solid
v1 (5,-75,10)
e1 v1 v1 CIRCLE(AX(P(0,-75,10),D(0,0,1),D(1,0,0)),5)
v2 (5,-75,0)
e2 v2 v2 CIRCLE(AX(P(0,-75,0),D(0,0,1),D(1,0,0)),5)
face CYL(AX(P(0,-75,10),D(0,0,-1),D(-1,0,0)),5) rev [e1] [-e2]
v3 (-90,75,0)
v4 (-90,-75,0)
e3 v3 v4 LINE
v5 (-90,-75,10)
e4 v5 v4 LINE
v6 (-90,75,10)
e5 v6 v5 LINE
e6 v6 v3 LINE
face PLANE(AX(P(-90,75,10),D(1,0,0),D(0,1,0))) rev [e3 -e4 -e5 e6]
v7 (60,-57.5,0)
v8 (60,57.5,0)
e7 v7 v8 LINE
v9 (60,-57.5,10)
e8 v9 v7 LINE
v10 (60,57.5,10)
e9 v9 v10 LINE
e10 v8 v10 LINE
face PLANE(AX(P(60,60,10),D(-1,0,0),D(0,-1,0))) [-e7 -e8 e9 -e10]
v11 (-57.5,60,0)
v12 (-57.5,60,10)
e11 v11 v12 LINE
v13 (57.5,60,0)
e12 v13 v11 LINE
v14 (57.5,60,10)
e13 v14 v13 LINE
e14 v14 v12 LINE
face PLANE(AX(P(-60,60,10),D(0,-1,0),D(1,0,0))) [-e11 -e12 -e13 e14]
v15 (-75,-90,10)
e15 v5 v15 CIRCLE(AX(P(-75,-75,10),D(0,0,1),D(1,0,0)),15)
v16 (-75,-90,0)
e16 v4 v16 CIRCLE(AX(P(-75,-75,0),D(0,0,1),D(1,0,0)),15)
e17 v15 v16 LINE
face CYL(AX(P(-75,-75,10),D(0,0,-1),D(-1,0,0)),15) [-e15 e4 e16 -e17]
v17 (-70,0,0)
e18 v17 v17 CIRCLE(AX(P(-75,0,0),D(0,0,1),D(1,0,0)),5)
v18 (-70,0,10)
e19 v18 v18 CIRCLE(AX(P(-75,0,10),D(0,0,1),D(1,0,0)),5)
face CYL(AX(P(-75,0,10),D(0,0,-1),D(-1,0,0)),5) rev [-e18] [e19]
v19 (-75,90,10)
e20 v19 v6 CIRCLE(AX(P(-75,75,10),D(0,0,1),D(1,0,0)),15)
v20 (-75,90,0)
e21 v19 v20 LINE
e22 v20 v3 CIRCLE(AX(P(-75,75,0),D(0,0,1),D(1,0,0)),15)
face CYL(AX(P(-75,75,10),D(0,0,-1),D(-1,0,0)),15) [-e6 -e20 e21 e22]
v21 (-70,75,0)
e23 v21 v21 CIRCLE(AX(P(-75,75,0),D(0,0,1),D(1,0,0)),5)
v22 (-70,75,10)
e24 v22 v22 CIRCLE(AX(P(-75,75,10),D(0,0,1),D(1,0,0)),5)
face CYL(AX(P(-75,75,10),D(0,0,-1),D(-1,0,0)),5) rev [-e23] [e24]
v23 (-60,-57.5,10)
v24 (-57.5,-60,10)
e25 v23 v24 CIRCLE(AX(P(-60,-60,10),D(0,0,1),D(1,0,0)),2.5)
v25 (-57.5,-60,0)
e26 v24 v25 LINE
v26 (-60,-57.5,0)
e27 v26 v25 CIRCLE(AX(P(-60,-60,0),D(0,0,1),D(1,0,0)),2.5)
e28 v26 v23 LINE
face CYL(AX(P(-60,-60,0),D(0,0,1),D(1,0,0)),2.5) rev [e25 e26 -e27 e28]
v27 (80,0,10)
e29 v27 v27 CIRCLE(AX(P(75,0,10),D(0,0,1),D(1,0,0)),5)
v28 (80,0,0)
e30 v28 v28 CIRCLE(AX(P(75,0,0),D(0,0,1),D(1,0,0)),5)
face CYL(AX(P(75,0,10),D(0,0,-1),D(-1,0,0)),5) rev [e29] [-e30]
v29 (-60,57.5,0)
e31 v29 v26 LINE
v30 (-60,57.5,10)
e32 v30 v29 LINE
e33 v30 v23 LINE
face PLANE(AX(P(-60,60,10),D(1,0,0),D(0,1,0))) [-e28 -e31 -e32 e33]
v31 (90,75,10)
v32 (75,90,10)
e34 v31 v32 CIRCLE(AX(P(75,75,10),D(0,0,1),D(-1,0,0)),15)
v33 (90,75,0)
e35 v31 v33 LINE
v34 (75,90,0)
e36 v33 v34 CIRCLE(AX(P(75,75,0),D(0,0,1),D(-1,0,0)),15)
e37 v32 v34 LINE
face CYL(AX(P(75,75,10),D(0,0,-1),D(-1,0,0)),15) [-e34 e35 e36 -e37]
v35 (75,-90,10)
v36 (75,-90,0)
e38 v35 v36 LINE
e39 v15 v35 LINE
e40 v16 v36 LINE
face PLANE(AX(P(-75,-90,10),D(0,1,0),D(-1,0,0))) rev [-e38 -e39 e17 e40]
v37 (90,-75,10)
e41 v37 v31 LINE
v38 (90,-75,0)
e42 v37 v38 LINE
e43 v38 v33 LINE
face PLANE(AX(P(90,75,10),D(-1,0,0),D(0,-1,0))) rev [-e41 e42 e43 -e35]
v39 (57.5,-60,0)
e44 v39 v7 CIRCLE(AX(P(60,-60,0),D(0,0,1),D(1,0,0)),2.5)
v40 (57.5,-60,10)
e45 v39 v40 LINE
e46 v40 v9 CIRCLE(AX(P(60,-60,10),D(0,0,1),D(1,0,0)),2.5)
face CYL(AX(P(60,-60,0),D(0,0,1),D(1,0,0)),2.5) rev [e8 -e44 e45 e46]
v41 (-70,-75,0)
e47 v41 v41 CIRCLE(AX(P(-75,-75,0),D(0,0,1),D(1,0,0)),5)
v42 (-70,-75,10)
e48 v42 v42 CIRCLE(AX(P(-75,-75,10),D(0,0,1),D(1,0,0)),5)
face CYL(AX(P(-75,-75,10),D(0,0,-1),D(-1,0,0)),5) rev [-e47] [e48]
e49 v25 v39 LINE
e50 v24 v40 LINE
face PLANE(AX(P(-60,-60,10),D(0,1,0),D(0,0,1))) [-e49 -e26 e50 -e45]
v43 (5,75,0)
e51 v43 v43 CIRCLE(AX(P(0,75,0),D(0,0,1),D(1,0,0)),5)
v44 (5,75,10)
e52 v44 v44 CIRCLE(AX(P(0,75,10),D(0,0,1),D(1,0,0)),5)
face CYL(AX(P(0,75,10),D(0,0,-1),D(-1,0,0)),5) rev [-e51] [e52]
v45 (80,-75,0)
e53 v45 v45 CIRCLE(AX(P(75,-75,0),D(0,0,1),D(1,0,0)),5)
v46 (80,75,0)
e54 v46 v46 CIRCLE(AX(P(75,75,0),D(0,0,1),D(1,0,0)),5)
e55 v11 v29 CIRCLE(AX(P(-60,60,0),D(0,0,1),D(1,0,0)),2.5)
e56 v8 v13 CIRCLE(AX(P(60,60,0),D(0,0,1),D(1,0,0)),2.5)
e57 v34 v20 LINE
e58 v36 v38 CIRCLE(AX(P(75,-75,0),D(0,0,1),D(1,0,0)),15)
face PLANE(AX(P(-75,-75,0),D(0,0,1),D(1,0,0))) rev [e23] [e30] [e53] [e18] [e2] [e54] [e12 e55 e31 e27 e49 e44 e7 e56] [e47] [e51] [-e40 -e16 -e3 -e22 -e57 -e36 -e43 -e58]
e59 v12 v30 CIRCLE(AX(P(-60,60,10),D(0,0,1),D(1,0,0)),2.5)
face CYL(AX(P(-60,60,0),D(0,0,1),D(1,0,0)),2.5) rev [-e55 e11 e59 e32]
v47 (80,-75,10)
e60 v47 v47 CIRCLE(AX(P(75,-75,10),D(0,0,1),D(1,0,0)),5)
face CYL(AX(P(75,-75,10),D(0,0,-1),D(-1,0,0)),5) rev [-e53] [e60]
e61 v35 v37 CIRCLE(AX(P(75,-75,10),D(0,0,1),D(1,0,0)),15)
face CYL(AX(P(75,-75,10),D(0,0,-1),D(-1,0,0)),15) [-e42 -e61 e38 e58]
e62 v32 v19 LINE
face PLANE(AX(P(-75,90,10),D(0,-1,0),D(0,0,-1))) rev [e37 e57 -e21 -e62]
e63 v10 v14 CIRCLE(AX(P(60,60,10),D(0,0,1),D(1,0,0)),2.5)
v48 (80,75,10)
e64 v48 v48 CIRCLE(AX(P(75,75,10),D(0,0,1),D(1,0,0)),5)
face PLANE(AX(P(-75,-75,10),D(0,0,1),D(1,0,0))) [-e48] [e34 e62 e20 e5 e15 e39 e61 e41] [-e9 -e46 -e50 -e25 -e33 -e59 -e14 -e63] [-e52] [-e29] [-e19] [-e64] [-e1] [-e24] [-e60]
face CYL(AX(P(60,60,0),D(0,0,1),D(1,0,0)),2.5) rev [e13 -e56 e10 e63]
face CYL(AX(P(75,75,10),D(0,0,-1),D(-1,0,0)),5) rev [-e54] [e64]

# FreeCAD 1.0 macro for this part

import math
import FreeCAD as App
import Part
import Sketcher
Q = App.Units.Quantity


def add_polygon(sketch, points):
    """Adds a closed chain of lines whose ends are joined by coincident constraints."""
    first, n = sketch.GeometryCount, len(points)
    for a, b in zip(points, points[1:] + points[:1]):
        sketch.addGeometry(Part.LineSegment(App.Vector(*a, 0), App.Vector(*b, 0)), False)
    for i in range(n):
        sketch.addConstraint(Sketcher.Constraint("Coincident", first + i, 2, first + (i + 1) % n, 1))

doc = App.newDocument("Part")
body = doc.addObject("PartDesign::Body", "Body")

sketch1 = body.newObject("Sketcher::SketchObject", "Sketch")
sketch1.AttachmentSupport = (doc.getObject("XY_Plane"), [""])
sketch1.MapMode = "FlatFace"
sketch1.addGeometry(Part.LineSegment(App.Vector(75, 90, 0), App.Vector(-75, 90, 0)), False)
sketch1.addGeometry(Part.ArcOfCircle(Part.Circle(App.Vector(-75, 75, 0), App.Vector(0, 0, 1), 15), math.radians(90), math.radians(180)), False)
sketch1.addGeometry(Part.LineSegment(App.Vector(-90, 75, 0), App.Vector(-90, -75, 0)), False)
sketch1.addGeometry(Part.ArcOfCircle(Part.Circle(App.Vector(-75, -75, 0), App.Vector(0, 0, 1), 15), math.radians(180), math.radians(270)), False)
sketch1.addGeometry(Part.LineSegment(App.Vector(-75, -90, 0), App.Vector(75, -90, 0)), False)
sketch1.addGeometry(Part.ArcOfCircle(Part.Circle(App.Vector(75, -75, 0), App.Vector(0, 0, 1), 15), math.radians(-90), math.radians(0)), False)
sketch1.addGeometry(Part.LineSegment(App.Vector(90, -75, 0), App.Vector(90, 75, 0)), False)
sketch1.addGeometry(Part.ArcOfCircle(Part.Circle(App.Vector(75, 75, 0), App.Vector(0, 0, 1), 15), math.radians(0), math.radians(90)), False)
sketch1.addGeometry(Part.Circle(App.Vector(75, -75, 0), App.Vector(0, 0, 1), 5), False)
sketch1.addGeometry(Part.Circle(App.Vector(0, -75, 0), App.Vector(0, 0, 1), 5), False)
sketch1.addGeometry(Part.Circle(App.Vector(-75, -75, 0), App.Vector(0, 0, 1), 5), False)
sketch1.addGeometry(Part.Circle(App.Vector(75, 0, 0), App.Vector(0, 0, 1), 5), False)
sketch1.addGeometry(Part.Circle(App.Vector(75, 75, 0), App.Vector(0, 0, 1), 5), False)
add_polygon(sketch1, [(-60, -60), (-60, 60), (60, 60), (60, -60)])
sketch1.addGeometry(Part.Circle(App.Vector(-75, 0, 0), App.Vector(0, 0, 1), 5), False)
sketch1.addGeometry(Part.Circle(App.Vector(0, 75, 0), App.Vector(0, 0, 1), 5), False)
sketch1.addGeometry(Part.Circle(App.Vector(-75, 75, 0), App.Vector(0, 0, 1), 5), False)
sketch1.addConstraint([
    Sketcher.Constraint("Tangent", 0, 2, 1, 1),
    Sketcher.Constraint("Tangent", 1, 2, 2, 1),
    Sketcher.Constraint("Tangent", 2, 2, 3, 1),
    Sketcher.Constraint("Tangent", 3, 2, 4, 1),
    Sketcher.Constraint("Tangent", 4, 2, 5, 1),
    Sketcher.Constraint("Tangent", 5, 2, 6, 1),
    Sketcher.Constraint("Tangent", 6, 2, 7, 1),
    Sketcher.Constraint("Tangent", 7, 2, 0, 1),
    Sketcher.Constraint("Horizontal", 0),
    Sketcher.Constraint("Vertical", 2),
    Sketcher.Constraint("Horizontal", 4),
    Sketcher.Constraint("Vertical", 6),
    Sketcher.Constraint("Vertical", 13),
    Sketcher.Constraint("Horizontal", 14),
    Sketcher.Constraint("Vertical", 15),
    Sketcher.Constraint("Horizontal", 16),
    Sketcher.Constraint("Coincident", 8, 3, 5, 3),
    Sketcher.Constraint("Coincident", 10, 3, 3, 3),
    Sketcher.Constraint("Coincident", 12, 3, 7, 3),
    Sketcher.Constraint("Coincident", 19, 3, 1, 3),
    Sketcher.Constraint("Equal", 1, 3),
    Sketcher.Constraint("Equal", 3, 5),
    Sketcher.Constraint("Equal", 5, 7),
    Sketcher.Constraint("Equal", 8, 9),
    Sketcher.Constraint("Equal", 9, 10),
    Sketcher.Constraint("Equal", 10, 11),
    Sketcher.Constraint("Equal", 11, 12),
    Sketcher.Constraint("Equal", 12, 17),
    Sketcher.Constraint("Equal", 17, 18),
    Sketcher.Constraint("Equal", 18, 19),
    Sketcher.Constraint("Symmetric", 1, 3, 5, 3, -1, 1),
    Sketcher.Constraint("Symmetric", 11, 3, 17, 3, -1, 1),
    Sketcher.Constraint("Symmetric", 9, 3, 18, 3, -1, 1),
    Sketcher.Constraint("Symmetric", 13, 2, 15, 2, -1, 1),
    Sketcher.Constraint("PointOnObject", 9, 3, -2),
    Sketcher.Constraint("PointOnObject", 11, 3, -1),
    Sketcher.Constraint("Horizontal", 8, 3, 9, 3),
    Sketcher.Constraint("Vertical", 8, 3, 11, 3),
    Sketcher.Constraint("Equal", 4, 2),
    Sketcher.Constraint("Equal", 16, 13),
    Sketcher.Constraint("Diameter", 8, Q("10 mm")),
    Sketcher.Constraint("Radius", 1, Q("15 mm")),
    Sketcher.Constraint("DistanceX", 0, 2, 0, 1, Q("150 mm")),
    Sketcher.Constraint("DistanceX", 14, 1, 14, 2, Q("120 mm")),
])
pad1 = body.newObject("PartDesign::Pad", "Pad")
pad1.Profile = sketch1
pad1.Length = 10

sketch2 = body.newObject("Sketcher::SketchObject", "Sketch001")
sketch2.AttachmentSupport = (doc.getObject("XY_Plane"), [""])
sketch2.MapMode = "FlatFace"
sketch2.AttachmentOffset = App.Placement(App.Vector(0, 0, 10), App.Rotation())
sketch2.addGeometry([
    Part.Circle(App.Vector(-60, 60, 0), App.Vector(0, 0, 1), 2.5),
    Part.Circle(App.Vector(60, 60, 0), App.Vector(0, 0, 1), 2.5),
    Part.Circle(App.Vector(60, -60, 0), App.Vector(0, 0, 1), 2.5),
    Part.Circle(App.Vector(-60, -60, 0), App.Vector(0, 0, 1), 2.5),
], False)
sketch2.addConstraint([
    Sketcher.Constraint("Equal", 0, 1),
    Sketcher.Constraint("Equal", 1, 2),
    Sketcher.Constraint("Equal", 2, 3),
    Sketcher.Constraint("Symmetric", 0, 3, 2, 3, -1, 1),
    Sketcher.Constraint("Symmetric", 1, 3, 3, 3, -1, 1),
    Sketcher.Constraint("Symmetric", 0, 3, 1, 3, -2),
    Sketcher.Constraint("Diameter", 0, Q("5 mm")),
    Sketcher.Constraint("DistanceX", 0, 3, -1, 1, Q("60 mm")),
    Sketcher.Constraint("DistanceY", -1, 1, 0, 3, Q("60 mm")),
])
pocket1 = body.newObject("PartDesign::Pocket", "Pocket")
pocket1.Profile = sketch2
pocket1.Length = 10

doc.recompute()
